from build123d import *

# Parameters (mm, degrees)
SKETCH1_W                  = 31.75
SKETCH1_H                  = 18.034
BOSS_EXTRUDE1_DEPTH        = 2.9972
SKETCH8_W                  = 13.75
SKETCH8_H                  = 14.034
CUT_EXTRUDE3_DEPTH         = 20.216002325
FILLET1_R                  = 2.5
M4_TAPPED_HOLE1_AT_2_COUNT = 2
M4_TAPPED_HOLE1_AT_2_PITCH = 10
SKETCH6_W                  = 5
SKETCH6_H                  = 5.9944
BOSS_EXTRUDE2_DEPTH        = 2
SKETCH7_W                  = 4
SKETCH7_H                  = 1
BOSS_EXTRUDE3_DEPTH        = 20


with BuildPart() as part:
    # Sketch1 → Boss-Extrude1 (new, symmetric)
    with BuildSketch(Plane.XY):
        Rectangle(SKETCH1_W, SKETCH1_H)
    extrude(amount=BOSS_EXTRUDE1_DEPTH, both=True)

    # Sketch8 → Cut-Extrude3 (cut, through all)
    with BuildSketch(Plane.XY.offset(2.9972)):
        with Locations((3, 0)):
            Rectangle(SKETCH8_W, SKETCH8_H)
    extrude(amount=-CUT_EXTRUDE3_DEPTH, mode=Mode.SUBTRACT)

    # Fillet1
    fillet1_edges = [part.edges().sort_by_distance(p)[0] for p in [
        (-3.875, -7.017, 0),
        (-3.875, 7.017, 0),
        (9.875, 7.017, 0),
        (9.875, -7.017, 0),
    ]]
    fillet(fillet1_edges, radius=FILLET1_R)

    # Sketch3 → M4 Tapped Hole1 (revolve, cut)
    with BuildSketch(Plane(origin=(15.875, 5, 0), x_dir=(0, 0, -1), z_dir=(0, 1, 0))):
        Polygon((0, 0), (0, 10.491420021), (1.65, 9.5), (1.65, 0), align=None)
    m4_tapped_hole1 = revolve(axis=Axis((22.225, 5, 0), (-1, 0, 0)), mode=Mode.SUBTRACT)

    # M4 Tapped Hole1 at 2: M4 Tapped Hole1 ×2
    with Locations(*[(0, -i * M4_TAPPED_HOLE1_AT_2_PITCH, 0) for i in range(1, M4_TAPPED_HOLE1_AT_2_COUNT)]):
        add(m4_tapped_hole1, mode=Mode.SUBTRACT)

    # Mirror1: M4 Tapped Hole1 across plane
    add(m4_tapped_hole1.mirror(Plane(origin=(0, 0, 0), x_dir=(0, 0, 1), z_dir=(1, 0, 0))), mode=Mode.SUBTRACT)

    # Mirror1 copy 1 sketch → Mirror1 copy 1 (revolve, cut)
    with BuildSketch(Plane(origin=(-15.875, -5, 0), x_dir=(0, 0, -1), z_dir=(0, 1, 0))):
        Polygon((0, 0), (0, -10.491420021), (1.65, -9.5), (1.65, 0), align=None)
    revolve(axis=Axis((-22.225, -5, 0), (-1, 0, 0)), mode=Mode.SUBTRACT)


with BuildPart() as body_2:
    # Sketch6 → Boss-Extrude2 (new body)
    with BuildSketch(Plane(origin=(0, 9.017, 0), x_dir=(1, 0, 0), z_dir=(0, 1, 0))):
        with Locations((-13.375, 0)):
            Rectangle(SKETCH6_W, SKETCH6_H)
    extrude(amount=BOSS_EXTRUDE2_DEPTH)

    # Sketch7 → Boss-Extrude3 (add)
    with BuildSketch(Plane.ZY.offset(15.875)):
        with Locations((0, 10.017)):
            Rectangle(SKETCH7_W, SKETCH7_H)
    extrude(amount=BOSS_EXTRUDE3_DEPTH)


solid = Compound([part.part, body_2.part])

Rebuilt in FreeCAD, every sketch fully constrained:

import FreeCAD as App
import Part
import Sketcher
Q = App.Units.Quantity


def edges_at(feature, points):
    """Names of the edges that pass closest to the given points."""
    edges = feature.Shape.Edges
    near = lambda p: min(range(len(edges)), key=lambda i: edges[i].distToShape(Part.Vertex(*p))[0])
    return sorted({f"Edge{near(p) + 1}" for p in points})

doc = App.newDocument("Part")
body = doc.addObject("PartDesign::Body", "Body")

# Sketch on XY plane
sketch1 = body.newObject("Sketcher::SketchObject", "Sketch")
sketch1.AttachmentSupport = (doc.getObject("XY_Plane"), [""])
sketch1.MapMode = "FlatFace"
sketch1.addGeometry([
    Part.LineSegment(App.Vector(-15.875, 9.017, 0), App.Vector(-15.875, -9.017, 0)),
    Part.LineSegment(App.Vector(-15.875, -9.017, 0), App.Vector(15.875, -9.017, 0)),
    Part.LineSegment(App.Vector(15.875, -9.017, 0), App.Vector(15.875, 9.017, 0)),
    Part.LineSegment(App.Vector(15.875, 9.017, 0), App.Vector(-15.875, 9.017, 0)),
], False)
sketch1.addConstraint([
    Sketcher.Constraint("Coincident", 0, 2, 1, 1),
    Sketcher.Constraint("Coincident", 1, 2, 2, 1),
    Sketcher.Constraint("Coincident", 2, 2, 3, 1),
    Sketcher.Constraint("Coincident", 3, 2, 0, 1),
    Sketcher.Constraint("Vertical", 0),
    Sketcher.Constraint("Horizontal", 1),
    Sketcher.Constraint("Vertical", 2),
    Sketcher.Constraint("Horizontal", 3),
    Sketcher.Constraint("Symmetric", 0, 2, 2, 2, -1, 1),
    Sketcher.Constraint("DistanceX", 1, 1, 1, 2, Q("31.75 mm")),
    Sketcher.Constraint("DistanceY", 0, 2, 0, 1, Q("18.034 mm")),
])
pad1 = body.newObject("PartDesign::Pad", "Pad")
pad1.Profile = sketch1
pad1.Length = 5.9944
pad1.Midplane = True

# Sketch on XY plane
sketch2 = body.newObject("Sketcher::SketchObject", "Sketch001")
sketch2.AttachmentSupport = (doc.getObject("XY_Plane"), [""])
sketch2.MapMode = "FlatFace"
sketch2.AttachmentOffset = App.Placement(App.Vector(0, 0, 2.9972), App.Rotation())
sketch2.addGeometry([
    Part.LineSegment(App.Vector(-3.875, 7.017, 0), App.Vector(-3.875, -7.017, 0)),
    Part.LineSegment(App.Vector(-3.875, -7.017, 0), App.Vector(9.875, -7.017, 0)),
    Part.LineSegment(App.Vector(9.875, -7.017, 0), App.Vector(9.875, 7.017, 0)),
    Part.LineSegment(App.Vector(9.875, 7.017, 0), App.Vector(-3.875, 7.017, 0)),
], False)
sketch2.addConstraint([
    Sketcher.Constraint("Coincident", 0, 2, 1, 1),
    Sketcher.Constraint("Coincident", 1, 2, 2, 1),
    Sketcher.Constraint("Coincident", 2, 2, 3, 1),
    Sketcher.Constraint("Coincident", 3, 2, 0, 1),
    Sketcher.Constraint("Vertical", 0),
    Sketcher.Constraint("Horizontal", 1),
    Sketcher.Constraint("Vertical", 2),
    Sketcher.Constraint("Horizontal", 3),
    Sketcher.Constraint("DistanceX", 1, 1, 1, 2, Q("13.75 mm")),
    Sketcher.Constraint("DistanceY", 0, 2, 0, 1, Q("14.034 mm")),
    Sketcher.Constraint("DistanceX", 0, 2, -1, 1, Q("3.875 mm")),
    Sketcher.Constraint("DistanceY", 0, 2, -1, 1, Q("7.017 mm")),
])
pocket1 = body.newObject("PartDesign::Pocket", "Pocket")
pocket1.Profile = sketch2
pocket1.Type = "ThroughAll"
doc.recompute()

fillet = body.newObject("PartDesign::Fillet", "Fillet")
fillet.Base = (pocket1, edges_at(pocket1, [
    (-3.875, -7.017, 0),
    (-3.875, 7.017, 0),
    (9.875, 7.017, 0),
    (9.875, -7.017, 0),
]))
fillet.Radius = 2.5

# Sketch on XZ plane
sketch3 = body.newObject("Sketcher::SketchObject", "Sketch002")
sketch3.AttachmentSupport = (doc.getObject("XZ_Plane"), [""])
sketch3.MapMode = "FlatFace"
sketch3.AttachmentOffset = App.Placement(App.Vector(0, 0, -5), App.Rotation())
sketch3.addGeometry([
    Part.LineSegment(App.Vector(5.38358, 0, 0), App.Vector(15.875, 0, 0)),
    Part.LineSegment(App.Vector(15.875, 0, 0), App.Vector(15.875, -1.65, 0)),
    Part.LineSegment(App.Vector(15.875, -1.65, 0), App.Vector(6.375, -1.65, 0)),
    Part.LineSegment(App.Vector(6.375, -1.65, 0), App.Vector(5.38358, 0, 0)),
], False)
sketch3.addConstraint([
    Sketcher.Constraint("Coincident", 0, 2, 1, 1),
    Sketcher.Constraint("Coincident", 1, 2, 2, 1),
    Sketcher.Constraint("Coincident", 2, 2, 3, 1),
    Sketcher.Constraint("Coincident", 3, 2, 0, 1),
    Sketcher.Constraint("Horizontal", 0),
    Sketcher.Constraint("Vertical", 1),
    Sketcher.Constraint("Horizontal", 2),
    Sketcher.Constraint("PointOnObject", 0, 2, -1),
    Sketcher.Constraint("Angle", 3, Q("121 deg")),
    Sketcher.Constraint("DistanceX", 2, 2, 2, 1, Q("9.5 mm")),
    Sketcher.Constraint("DistanceY", 1, 2, 1, 1, Q("1.65 mm")),
    Sketcher.Constraint("DistanceX", -1, 1, 0, 2, Q("15.875 mm")),
])
groove = body.newObject("PartDesign::Groove", "Groove")
groove.Profile = sketch3
groove.ReferenceAxis = (sketch3, ["H_Axis"])
groove.Angle = 360
doc.recompute()

linearpattern = body.newObject("PartDesign::LinearPattern", "LinearPattern")
linearpattern.Originals = [groove]
linearpattern.Direction = (doc.getObject("Y_Axis"), [""])
linearpattern.Mode = "offset"
linearpattern.Offset = 10
linearpattern.Occurrences = 2
linearpattern.Reversed = True
body.Tip = linearpattern
doc.recompute()

mirrored = body.newObject("PartDesign::Mirrored", "Mirrored")
mirrored.Originals = [groove]
mirrored.MirrorPlane = (doc.getObject("YZ_Plane"), [""])
body.Tip = mirrored

# Sketch on XZ plane
sketch4 = body.newObject("Sketcher::SketchObject", "Sketch003")
sketch4.AttachmentSupport = (doc.getObject("XZ_Plane"), [""])
sketch4.MapMode = "FlatFace"
sketch4.AttachmentOffset = App.Placement(App.Vector(0, 0, 5), App.Rotation())
sketch4.addGeometry([
    Part.LineSegment(App.Vector(-15.875, 0, 0), App.Vector(-5.38358, 0, 0)),
    Part.LineSegment(App.Vector(-5.38358, 0, 0), App.Vector(-6.375, -1.65, 0)),
    Part.LineSegment(App.Vector(-6.375, -1.65, 0), App.Vector(-15.875, -1.65, 0)),
    Part.LineSegment(App.Vector(-15.875, -1.65, 0), App.Vector(-15.875, 0, 0)),
], False)
sketch4.addConstraint([
    Sketcher.Constraint("Coincident", 0, 2, 1, 1),
    Sketcher.Constraint("Coincident", 1, 2, 2, 1),
    Sketcher.Constraint("Coincident", 2, 2, 3, 1),
    Sketcher.Constraint("Coincident", 3, 2, 0, 1),
    Sketcher.Constraint("Horizontal", 0),
    Sketcher.Constraint("Horizontal", 2),
    Sketcher.Constraint("Vertical", 3),
    Sketcher.Constraint("PointOnObject", 0, 2, -1),
    Sketcher.Constraint("Angle", 1, Q("-121 deg")),
    Sketcher.Constraint("DistanceX", 2, 2, 2, 1, Q("9.5 mm")),
    Sketcher.Constraint("DistanceY", 3, 1, 3, 2, Q("1.65 mm")),
    Sketcher.Constraint("DistanceX", 1, 2, -1, 1, Q("6.375 mm")),
])
groove2 = body.newObject("PartDesign::Groove", "Groove001")
groove2.Profile = sketch4
groove2.ReferenceAxis = (sketch4, ["H_Axis"])
groove2.Angle = 360
body2 = doc.addObject("PartDesign::Body", "Body001")

# Sketch on XZ plane
sketch5 = body2.newObject("Sketcher::SketchObject", "Sketch004")
sketch5.AttachmentSupport = (doc.getObject("XZ_Plane001"), [""])
sketch5.MapMode = "FlatFace"
sketch5.AttachmentOffset = App.Placement(App.Vector(0, 0, -9.017), App.Rotation())
sketch5.addGeometry([
    Part.LineSegment(App.Vector(-15.875, -2.9972, 0), App.Vector(-15.875, 2.9972, 0)),
    Part.LineSegment(App.Vector(-15.875, 2.9972, 0), App.Vector(-10.875, 2.9972, 0)),
    Part.LineSegment(App.Vector(-10.875, 2.9972, 0), App.Vector(-10.875, -2.9972, 0)),
    Part.LineSegment(App.Vector(-10.875, -2.9972, 0), App.Vector(-15.875, -2.9972, 0)),
], False)
sketch5.addConstraint([
    Sketcher.Constraint("Coincident", 0, 2, 1, 1),
    Sketcher.Constraint("Coincident", 1, 2, 2, 1),
    Sketcher.Constraint("Coincident", 2, 2, 3, 1),
    Sketcher.Constraint("Coincident", 3, 2, 0, 1),
    Sketcher.Constraint("Vertical", 0),
    Sketcher.Constraint("Horizontal", 1),
    Sketcher.Constraint("Vertical", 2),
    Sketcher.Constraint("Horizontal", 3),
    Sketcher.Constraint("DistanceX", 1, 1, 1, 2, Q("5 mm")),
    Sketcher.Constraint("DistanceY", 0, 1, 0, 2, Q("5.9944 mm")),
    Sketcher.Constraint("DistanceX", 0, 2, -1, 1, Q("15.875 mm")),
    Sketcher.Constraint("DistanceY", -1, 1, 0, 2, Q("2.9972 mm")),
])
pad2 = body2.newObject("PartDesign::Pad", "Pad001")
pad2.Profile = sketch5
pad2.Length = 2
pad2.Reversed = True

# Sketch on YZ plane
sketch6 = body2.newObject("Sketcher::SketchObject", "Sketch005")
sketch6.AttachmentSupport = (doc.getObject("YZ_Plane001"), [""])
sketch6.MapMode = "FlatFace"
sketch6.AttachmentOffset = App.Placement(App.Vector(0, 0, -15.875), App.Rotation())
sketch6.addGeometry([
    Part.LineSegment(App.Vector(10.517, -2, 0), App.Vector(9.517, -2, 0)),
    Part.LineSegment(App.Vector(9.517, -2, 0), App.Vector(9.517, 2, 0)),
    Part.LineSegment(App.Vector(9.517, 2, 0), App.Vector(10.517, 2, 0)),
    Part.LineSegment(App.Vector(10.517, 2, 0), App.Vector(10.517, -2, 0)),
], False)
sketch6.addConstraint([
    Sketcher.Constraint("Coincident", 0, 2, 1, 1),
    Sketcher.Constraint("Coincident", 1, 2, 2, 1),
    Sketcher.Constraint("Coincident", 2, 2, 3, 1),
    Sketcher.Constraint("Coincident", 3, 2, 0, 1),
    Sketcher.Constraint("Horizontal", 0),
    Sketcher.Constraint("Vertical", 1),
    Sketcher.Constraint("Horizontal", 2),
    Sketcher.Constraint("Vertical", 3),
    Sketcher.Constraint("DistanceX", 0, 2, 0, 1, Q("1 mm")),
    Sketcher.Constraint("DistanceY", 1, 1, 1, 2, Q("4 mm")),
    Sketcher.Constraint("DistanceY", 0, 2, -1, 1, Q("2 mm")),
    Sketcher.Constraint("DistanceX", -1, 1, 0, 2, Q("9.517 mm")),
])
pad3 = body2.newObject("PartDesign::Pad", "Pad002")
pad3.Profile = sketch6
pad3.Length = 20
pad3.Reversed = True

doc.recompute()
